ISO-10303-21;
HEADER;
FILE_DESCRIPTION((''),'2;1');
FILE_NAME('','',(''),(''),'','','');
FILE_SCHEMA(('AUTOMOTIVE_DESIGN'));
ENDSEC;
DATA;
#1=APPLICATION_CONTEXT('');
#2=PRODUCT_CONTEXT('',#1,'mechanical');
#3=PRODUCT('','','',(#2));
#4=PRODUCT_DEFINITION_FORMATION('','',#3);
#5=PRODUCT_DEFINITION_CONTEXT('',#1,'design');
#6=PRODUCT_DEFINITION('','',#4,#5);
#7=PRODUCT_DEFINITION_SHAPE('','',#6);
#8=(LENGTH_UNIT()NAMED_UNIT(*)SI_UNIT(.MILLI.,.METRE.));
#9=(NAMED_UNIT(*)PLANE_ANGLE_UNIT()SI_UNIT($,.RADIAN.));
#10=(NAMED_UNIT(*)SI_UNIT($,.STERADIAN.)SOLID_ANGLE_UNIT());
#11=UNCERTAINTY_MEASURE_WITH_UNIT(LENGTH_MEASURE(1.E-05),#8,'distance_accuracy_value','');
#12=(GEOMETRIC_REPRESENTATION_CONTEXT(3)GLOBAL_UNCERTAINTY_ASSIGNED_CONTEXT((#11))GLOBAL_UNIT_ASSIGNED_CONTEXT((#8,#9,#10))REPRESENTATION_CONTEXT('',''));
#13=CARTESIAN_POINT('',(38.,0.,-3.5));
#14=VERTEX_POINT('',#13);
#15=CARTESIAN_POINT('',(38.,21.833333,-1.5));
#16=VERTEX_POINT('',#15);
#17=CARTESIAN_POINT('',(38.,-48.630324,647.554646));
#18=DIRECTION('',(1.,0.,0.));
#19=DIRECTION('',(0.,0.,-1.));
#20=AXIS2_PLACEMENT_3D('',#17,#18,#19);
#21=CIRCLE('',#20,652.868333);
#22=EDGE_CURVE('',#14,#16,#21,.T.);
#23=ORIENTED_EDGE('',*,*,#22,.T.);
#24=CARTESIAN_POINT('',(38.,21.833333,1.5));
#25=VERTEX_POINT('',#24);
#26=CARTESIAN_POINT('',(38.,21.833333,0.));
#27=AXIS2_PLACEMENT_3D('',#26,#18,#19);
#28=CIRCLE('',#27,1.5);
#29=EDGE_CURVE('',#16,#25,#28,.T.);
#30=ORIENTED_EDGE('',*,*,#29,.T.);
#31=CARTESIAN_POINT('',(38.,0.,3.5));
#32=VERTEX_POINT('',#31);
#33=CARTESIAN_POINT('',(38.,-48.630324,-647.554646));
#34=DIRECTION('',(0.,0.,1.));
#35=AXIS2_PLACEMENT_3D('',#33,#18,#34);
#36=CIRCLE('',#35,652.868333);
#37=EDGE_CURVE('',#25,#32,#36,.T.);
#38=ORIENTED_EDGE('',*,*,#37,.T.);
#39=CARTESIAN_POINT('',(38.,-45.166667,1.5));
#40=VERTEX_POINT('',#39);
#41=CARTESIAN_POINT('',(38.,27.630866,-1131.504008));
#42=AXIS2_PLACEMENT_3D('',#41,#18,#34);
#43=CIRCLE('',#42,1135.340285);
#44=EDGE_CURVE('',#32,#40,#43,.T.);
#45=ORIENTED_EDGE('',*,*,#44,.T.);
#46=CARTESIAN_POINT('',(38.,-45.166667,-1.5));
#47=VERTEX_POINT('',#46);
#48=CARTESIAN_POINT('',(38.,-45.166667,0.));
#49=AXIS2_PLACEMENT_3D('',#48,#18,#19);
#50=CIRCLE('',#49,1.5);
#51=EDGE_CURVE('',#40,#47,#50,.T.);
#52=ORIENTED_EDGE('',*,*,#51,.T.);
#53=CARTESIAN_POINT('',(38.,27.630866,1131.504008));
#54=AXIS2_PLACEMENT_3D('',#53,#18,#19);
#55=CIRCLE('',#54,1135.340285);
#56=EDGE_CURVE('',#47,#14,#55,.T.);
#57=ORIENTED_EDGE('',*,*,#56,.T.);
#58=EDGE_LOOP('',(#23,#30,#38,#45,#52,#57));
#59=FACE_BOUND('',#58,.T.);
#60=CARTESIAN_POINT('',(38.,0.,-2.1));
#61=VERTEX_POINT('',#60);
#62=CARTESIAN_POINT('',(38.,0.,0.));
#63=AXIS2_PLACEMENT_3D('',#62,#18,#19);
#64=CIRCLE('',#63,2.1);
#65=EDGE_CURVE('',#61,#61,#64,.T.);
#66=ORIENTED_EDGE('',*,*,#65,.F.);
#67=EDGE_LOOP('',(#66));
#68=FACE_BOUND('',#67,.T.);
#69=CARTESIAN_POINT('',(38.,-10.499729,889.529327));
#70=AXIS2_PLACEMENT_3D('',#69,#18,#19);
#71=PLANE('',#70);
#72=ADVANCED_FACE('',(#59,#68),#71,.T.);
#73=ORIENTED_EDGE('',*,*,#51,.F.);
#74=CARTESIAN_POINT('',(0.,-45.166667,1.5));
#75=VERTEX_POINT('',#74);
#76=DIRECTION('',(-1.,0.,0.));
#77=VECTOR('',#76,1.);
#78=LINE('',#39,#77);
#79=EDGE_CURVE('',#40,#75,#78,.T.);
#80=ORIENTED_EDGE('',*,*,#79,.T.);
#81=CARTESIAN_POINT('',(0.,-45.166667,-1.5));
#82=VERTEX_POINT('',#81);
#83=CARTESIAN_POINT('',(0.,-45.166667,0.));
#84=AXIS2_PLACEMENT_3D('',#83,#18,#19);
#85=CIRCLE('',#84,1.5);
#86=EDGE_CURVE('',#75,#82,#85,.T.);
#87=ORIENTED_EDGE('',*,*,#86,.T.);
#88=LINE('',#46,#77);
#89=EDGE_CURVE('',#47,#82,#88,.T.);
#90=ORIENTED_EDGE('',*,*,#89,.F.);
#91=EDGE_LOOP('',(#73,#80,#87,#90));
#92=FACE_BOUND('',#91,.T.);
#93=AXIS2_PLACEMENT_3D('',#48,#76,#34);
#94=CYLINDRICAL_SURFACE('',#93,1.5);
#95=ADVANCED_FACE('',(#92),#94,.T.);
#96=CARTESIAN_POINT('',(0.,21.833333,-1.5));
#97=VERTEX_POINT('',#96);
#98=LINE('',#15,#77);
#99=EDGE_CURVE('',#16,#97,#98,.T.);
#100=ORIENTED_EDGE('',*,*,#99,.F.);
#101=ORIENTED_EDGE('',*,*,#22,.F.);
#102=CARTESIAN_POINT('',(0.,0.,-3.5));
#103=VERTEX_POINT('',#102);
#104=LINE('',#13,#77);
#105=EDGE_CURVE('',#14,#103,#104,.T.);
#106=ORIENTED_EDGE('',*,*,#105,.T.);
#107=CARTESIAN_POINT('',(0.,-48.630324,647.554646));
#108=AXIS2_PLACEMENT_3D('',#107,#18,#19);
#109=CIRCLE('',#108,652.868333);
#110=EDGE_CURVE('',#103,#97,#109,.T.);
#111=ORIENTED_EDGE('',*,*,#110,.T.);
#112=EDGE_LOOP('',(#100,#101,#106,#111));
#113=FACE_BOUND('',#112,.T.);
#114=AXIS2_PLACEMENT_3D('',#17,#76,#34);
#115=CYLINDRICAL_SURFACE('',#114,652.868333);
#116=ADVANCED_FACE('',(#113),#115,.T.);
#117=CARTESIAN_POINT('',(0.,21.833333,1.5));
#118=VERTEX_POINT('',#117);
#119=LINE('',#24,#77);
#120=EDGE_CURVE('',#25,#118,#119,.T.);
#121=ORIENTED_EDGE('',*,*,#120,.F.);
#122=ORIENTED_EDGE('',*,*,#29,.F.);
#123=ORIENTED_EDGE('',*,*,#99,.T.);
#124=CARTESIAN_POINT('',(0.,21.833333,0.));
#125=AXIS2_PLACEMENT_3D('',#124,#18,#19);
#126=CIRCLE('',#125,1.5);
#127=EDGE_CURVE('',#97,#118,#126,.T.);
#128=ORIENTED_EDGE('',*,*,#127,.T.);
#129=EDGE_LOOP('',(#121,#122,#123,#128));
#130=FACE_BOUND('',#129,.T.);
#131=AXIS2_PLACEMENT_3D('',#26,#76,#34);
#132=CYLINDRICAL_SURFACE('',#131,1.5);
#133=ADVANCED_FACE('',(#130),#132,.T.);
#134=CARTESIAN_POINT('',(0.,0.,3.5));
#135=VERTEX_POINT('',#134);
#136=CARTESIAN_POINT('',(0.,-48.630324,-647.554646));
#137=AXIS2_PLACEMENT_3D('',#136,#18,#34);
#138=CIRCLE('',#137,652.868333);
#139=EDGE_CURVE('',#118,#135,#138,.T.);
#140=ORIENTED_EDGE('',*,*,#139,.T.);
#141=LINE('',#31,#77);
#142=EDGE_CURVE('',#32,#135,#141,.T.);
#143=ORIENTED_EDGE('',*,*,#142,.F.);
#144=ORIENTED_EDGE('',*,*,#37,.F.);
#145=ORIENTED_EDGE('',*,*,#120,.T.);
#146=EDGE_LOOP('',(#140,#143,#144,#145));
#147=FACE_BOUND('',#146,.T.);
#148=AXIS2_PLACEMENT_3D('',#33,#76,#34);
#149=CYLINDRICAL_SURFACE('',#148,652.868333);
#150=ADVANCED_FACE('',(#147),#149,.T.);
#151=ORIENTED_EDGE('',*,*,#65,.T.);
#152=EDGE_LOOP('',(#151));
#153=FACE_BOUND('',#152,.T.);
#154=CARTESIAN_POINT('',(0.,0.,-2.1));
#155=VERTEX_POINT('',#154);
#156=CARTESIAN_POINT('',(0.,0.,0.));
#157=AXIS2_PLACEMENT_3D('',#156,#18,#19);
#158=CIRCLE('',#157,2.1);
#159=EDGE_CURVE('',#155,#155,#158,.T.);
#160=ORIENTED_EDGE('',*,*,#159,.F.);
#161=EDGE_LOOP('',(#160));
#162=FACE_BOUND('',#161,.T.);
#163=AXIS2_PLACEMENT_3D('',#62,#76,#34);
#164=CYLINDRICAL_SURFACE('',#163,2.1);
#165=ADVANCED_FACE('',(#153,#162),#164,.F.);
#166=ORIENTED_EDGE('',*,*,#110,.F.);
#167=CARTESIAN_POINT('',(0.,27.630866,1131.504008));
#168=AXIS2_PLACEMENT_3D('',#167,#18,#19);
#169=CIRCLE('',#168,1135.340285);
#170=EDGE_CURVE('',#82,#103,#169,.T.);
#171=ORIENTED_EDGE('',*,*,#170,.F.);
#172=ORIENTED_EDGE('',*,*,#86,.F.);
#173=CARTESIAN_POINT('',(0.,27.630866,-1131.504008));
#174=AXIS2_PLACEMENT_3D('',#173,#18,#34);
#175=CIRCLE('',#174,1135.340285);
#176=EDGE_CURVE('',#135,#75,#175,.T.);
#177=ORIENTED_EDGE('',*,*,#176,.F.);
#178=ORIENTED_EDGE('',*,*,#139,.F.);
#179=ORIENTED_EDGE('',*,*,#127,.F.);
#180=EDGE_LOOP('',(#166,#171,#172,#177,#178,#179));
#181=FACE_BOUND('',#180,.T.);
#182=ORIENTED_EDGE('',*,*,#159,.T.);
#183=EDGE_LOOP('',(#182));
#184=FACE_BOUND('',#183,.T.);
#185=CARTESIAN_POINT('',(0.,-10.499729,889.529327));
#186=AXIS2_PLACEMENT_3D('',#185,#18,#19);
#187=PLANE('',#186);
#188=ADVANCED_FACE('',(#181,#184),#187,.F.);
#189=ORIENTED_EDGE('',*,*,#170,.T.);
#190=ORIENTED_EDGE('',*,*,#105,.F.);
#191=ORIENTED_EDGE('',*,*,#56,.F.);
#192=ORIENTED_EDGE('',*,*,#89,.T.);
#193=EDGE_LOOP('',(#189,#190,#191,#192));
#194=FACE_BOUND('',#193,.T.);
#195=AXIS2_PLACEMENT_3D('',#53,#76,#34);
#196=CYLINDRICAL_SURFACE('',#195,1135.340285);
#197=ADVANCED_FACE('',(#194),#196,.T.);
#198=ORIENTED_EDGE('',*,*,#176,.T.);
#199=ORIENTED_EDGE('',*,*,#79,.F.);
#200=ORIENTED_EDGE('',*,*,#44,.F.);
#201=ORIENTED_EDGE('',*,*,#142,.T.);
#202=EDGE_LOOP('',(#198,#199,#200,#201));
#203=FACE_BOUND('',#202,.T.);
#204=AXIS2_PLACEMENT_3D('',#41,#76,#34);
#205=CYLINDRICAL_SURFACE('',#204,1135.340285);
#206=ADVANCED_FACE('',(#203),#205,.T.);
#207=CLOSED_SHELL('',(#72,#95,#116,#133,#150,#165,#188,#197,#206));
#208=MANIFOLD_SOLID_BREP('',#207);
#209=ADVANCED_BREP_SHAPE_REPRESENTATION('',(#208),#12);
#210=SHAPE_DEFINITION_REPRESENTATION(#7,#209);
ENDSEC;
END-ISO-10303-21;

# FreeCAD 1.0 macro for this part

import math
import FreeCAD as App
import Part
import Sketcher
from FreeCAD import Vector

doc = App.newDocument("Part")
body = doc.addObject("PartDesign::Body", "Body")

# Sketch on YZ plane
sketch1 = body.newObject("Sketcher::SketchObject", "Sketch")
sketch1.AttachmentSupport = (doc.getObject("YZ_Plane"), [""])
sketch1.MapMode = "FlatFace"
sketch1.addGeometry(Part.ArcOfCircle(Part.Circle(Vector(-45.2, 0, 0), Vector(0, 0, 1), 1.5), math.radians(90), math.radians(270)), False)
sketch1.addGeometry(Part.ArcOfCircle(Part.Circle(Vector(27.6, 1131.5, 0), Vector(0, 0, 1), 1135.3), math.radians(-93.68), math.radians(-91.39)), False)
sketch1.addGeometry(Part.ArcOfCircle(Part.Circle(Vector(-48.6, 647.6, 0), Vector(0, 0, 1), 652.9), math.radians(-85.73), math.radians(-83.8)), False)
sketch1.addGeometry(Part.ArcOfCircle(Part.Circle(Vector(21.8, 0, 0), Vector(0, 0, 1), 1.5), math.radians(-90), math.radians(90)), False)
sketch1.addGeometry(Part.ArcOfCircle(Part.Circle(Vector(-48.6, -647.6, 0), Vector(0, 0, 1), 652.9), math.radians(83.8), math.radians(85.73)), False)
sketch1.addGeometry(Part.ArcOfCircle(Part.Circle(Vector(27.6, -1131.5, 0), Vector(0, 0, 1), 1135.3), math.radians(91.39), math.radians(93.68)), False)
sketch1.addGeometry(Part.Circle(Vector(0, 0, 0), Vector(0, 0, 1), 2.1), False)
sketch1.addConstraint(Sketcher.Constraint("Coincident", 0, 2, 1, 1))
sketch1.addConstraint(Sketcher.Constraint("Coincident", 1, 2, 2, 1))
sketch1.addConstraint(Sketcher.Constraint("Coincident", 2, 2, 3, 1))
sketch1.addConstraint(Sketcher.Constraint("Coincident", 3, 2, 4, 1))
sketch1.addConstraint(Sketcher.Constraint("Coincident", 4, 2, 5, 1))
sketch1.addConstraint(Sketcher.Constraint("Coincident", 5, 2, 0, 1))
sketch1.addConstraint(Sketcher.Constraint("Coincident", 6, 3, -1, 1))
sketch1.addConstraint(Sketcher.Constraint("Equal", 0, 3))
sketch1.addConstraint(Sketcher.Constraint("Equal", 2, 4))
sketch1.addConstraint(Sketcher.Constraint("Equal", 1, 5))
sketch1.addConstraint(Sketcher.Constraint("Symmetric", 1, 2, 4, 2, -1, 1))
sketch1.addConstraint(Sketcher.Constraint("Symmetric", 2, 3, 4, 3, -1))
sketch1.addConstraint(Sketcher.Constraint("PointOnObject", 0, 3, -1))
sketch1.addConstraint(Sketcher.Constraint("PointOnObject", 3, 3, -1))
sketch1.addConstraint(Sketcher.Constraint("Vertical", 1, 3, 5, 3))
sketch1.addConstraint(Sketcher.Constraint("Diameter", 6, 4.2))
sketch1.addConstraint(Sketcher.Constraint("Radius", 0, 1.5))
sketch1.addConstraint(Sketcher.Constraint("DistanceX", 0, 3, 3, 3, 67.0))
sketch1.addConstraint(Sketcher.Constraint("DistanceX", 0, 2, 3, 3, 67.0))
sketch1.addConstraint(Sketcher.Constraint("DistanceX", 0, 3, 3, 2, 67.0))
sketch1.addConstraint(Sketcher.Constraint("Radius", 1, 1135.340285))
sketch1.addConstraint(Sketcher.Constraint("Radius", 2, 652.868335))
sketch1.addConstraint(Sketcher.Constraint("DistanceY", -1, 1, 2, 3, 647.554648))
sketch1.addConstraint(Sketcher.Constraint("DistanceX", 2, 3, 1, 3, 76.26119))
pad1 = body.newObject("PartDesign::Pad", "Pad")
pad1.Profile = sketch1
pad1.Length = 38

doc.recompute()
